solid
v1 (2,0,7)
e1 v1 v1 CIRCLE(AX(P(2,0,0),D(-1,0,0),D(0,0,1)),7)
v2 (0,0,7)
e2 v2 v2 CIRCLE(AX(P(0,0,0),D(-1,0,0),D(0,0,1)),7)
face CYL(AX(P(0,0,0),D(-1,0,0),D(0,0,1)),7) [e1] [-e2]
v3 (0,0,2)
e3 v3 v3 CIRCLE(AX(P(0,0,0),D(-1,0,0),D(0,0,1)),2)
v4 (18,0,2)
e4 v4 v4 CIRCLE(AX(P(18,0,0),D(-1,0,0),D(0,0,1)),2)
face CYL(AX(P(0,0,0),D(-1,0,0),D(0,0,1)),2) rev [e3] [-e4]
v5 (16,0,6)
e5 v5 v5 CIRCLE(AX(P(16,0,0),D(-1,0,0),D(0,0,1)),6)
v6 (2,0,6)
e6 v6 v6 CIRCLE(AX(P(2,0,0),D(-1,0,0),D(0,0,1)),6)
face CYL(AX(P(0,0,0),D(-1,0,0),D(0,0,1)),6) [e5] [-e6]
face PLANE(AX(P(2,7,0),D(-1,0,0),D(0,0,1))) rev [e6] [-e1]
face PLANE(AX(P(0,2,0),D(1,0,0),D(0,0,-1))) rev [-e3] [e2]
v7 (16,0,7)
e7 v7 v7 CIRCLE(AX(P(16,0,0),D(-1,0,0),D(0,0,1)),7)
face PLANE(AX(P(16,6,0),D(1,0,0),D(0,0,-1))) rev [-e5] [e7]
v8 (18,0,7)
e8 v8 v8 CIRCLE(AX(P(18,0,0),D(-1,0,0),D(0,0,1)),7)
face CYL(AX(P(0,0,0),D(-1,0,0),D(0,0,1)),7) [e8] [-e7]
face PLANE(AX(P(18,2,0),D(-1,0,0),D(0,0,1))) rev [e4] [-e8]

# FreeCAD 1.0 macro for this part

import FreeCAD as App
import Part
import Sketcher
from FreeCAD import Vector


def add_polygon(sketch, points):
    """Adds a closed chain of lines whose ends are joined by coincident constraints."""
    first, n = sketch.GeometryCount, len(points)
    for a, b in zip(points, points[1:] + points[:1]):
        sketch.addGeometry(Part.LineSegment(App.Vector(*a, 0), App.Vector(*b, 0)), False)
    for i in range(n):
        sketch.addConstraint(Sketcher.Constraint("Coincident", first + i, 2, first + (i + 1) % n, 1))

doc = App.newDocument("Part")
body = doc.addObject("PartDesign::Body", "Body")

# Sketch on XY plane
sketch1 = body.newObject("Sketcher::SketchObject", "Sketch")
sketch1.AttachmentSupport = (doc.getObject("XY_Plane"), [""])
sketch1.MapMode = "FlatFace"
add_polygon(sketch1, [(0, 7), (0, 2), (18, 2), (18, 7), (16, 7), (16, 6), (2, 6), (2, 7)])  # lines 0-7
sketch1.addConstraint([
    Sketcher.Constraint("Vertical", 0),
    Sketcher.Constraint("Horizontal", 1),
    Sketcher.Constraint("Vertical", 2),
    Sketcher.Constraint("Horizontal", 3),
    Sketcher.Constraint("Vertical", 4),
    Sketcher.Constraint("Horizontal", 5),
    Sketcher.Constraint("Vertical", 6),
    Sketcher.Constraint("Horizontal", 7),
    Sketcher.Constraint("PointOnObject", 0, 2, -2),
    Sketcher.Constraint("Horizontal", 3, 2, 6, 2),
    Sketcher.Constraint("Equal", 3, 7),
    Sketcher.Constraint("DistanceX", 1, 1, 1, 2, 18.0),
    Sketcher.Constraint("DistanceX", 3, 2, 3, 1, 2.0),
    Sketcher.Constraint("DistanceY", 0, 2, 0, 1, 5.0),
    Sketcher.Constraint("DistanceY", 4, 2, 4, 1, 1.0),
    Sketcher.Constraint("DistanceY", -1, 1, 0, 2, 2.0),
])
revolution = body.newObject("PartDesign::Revolution", "Revolution")
revolution.Profile = sketch1
revolution.ReferenceAxis = (sketch1, ["H_Axis"])
revolution.Angle = 360

doc.recompute()
